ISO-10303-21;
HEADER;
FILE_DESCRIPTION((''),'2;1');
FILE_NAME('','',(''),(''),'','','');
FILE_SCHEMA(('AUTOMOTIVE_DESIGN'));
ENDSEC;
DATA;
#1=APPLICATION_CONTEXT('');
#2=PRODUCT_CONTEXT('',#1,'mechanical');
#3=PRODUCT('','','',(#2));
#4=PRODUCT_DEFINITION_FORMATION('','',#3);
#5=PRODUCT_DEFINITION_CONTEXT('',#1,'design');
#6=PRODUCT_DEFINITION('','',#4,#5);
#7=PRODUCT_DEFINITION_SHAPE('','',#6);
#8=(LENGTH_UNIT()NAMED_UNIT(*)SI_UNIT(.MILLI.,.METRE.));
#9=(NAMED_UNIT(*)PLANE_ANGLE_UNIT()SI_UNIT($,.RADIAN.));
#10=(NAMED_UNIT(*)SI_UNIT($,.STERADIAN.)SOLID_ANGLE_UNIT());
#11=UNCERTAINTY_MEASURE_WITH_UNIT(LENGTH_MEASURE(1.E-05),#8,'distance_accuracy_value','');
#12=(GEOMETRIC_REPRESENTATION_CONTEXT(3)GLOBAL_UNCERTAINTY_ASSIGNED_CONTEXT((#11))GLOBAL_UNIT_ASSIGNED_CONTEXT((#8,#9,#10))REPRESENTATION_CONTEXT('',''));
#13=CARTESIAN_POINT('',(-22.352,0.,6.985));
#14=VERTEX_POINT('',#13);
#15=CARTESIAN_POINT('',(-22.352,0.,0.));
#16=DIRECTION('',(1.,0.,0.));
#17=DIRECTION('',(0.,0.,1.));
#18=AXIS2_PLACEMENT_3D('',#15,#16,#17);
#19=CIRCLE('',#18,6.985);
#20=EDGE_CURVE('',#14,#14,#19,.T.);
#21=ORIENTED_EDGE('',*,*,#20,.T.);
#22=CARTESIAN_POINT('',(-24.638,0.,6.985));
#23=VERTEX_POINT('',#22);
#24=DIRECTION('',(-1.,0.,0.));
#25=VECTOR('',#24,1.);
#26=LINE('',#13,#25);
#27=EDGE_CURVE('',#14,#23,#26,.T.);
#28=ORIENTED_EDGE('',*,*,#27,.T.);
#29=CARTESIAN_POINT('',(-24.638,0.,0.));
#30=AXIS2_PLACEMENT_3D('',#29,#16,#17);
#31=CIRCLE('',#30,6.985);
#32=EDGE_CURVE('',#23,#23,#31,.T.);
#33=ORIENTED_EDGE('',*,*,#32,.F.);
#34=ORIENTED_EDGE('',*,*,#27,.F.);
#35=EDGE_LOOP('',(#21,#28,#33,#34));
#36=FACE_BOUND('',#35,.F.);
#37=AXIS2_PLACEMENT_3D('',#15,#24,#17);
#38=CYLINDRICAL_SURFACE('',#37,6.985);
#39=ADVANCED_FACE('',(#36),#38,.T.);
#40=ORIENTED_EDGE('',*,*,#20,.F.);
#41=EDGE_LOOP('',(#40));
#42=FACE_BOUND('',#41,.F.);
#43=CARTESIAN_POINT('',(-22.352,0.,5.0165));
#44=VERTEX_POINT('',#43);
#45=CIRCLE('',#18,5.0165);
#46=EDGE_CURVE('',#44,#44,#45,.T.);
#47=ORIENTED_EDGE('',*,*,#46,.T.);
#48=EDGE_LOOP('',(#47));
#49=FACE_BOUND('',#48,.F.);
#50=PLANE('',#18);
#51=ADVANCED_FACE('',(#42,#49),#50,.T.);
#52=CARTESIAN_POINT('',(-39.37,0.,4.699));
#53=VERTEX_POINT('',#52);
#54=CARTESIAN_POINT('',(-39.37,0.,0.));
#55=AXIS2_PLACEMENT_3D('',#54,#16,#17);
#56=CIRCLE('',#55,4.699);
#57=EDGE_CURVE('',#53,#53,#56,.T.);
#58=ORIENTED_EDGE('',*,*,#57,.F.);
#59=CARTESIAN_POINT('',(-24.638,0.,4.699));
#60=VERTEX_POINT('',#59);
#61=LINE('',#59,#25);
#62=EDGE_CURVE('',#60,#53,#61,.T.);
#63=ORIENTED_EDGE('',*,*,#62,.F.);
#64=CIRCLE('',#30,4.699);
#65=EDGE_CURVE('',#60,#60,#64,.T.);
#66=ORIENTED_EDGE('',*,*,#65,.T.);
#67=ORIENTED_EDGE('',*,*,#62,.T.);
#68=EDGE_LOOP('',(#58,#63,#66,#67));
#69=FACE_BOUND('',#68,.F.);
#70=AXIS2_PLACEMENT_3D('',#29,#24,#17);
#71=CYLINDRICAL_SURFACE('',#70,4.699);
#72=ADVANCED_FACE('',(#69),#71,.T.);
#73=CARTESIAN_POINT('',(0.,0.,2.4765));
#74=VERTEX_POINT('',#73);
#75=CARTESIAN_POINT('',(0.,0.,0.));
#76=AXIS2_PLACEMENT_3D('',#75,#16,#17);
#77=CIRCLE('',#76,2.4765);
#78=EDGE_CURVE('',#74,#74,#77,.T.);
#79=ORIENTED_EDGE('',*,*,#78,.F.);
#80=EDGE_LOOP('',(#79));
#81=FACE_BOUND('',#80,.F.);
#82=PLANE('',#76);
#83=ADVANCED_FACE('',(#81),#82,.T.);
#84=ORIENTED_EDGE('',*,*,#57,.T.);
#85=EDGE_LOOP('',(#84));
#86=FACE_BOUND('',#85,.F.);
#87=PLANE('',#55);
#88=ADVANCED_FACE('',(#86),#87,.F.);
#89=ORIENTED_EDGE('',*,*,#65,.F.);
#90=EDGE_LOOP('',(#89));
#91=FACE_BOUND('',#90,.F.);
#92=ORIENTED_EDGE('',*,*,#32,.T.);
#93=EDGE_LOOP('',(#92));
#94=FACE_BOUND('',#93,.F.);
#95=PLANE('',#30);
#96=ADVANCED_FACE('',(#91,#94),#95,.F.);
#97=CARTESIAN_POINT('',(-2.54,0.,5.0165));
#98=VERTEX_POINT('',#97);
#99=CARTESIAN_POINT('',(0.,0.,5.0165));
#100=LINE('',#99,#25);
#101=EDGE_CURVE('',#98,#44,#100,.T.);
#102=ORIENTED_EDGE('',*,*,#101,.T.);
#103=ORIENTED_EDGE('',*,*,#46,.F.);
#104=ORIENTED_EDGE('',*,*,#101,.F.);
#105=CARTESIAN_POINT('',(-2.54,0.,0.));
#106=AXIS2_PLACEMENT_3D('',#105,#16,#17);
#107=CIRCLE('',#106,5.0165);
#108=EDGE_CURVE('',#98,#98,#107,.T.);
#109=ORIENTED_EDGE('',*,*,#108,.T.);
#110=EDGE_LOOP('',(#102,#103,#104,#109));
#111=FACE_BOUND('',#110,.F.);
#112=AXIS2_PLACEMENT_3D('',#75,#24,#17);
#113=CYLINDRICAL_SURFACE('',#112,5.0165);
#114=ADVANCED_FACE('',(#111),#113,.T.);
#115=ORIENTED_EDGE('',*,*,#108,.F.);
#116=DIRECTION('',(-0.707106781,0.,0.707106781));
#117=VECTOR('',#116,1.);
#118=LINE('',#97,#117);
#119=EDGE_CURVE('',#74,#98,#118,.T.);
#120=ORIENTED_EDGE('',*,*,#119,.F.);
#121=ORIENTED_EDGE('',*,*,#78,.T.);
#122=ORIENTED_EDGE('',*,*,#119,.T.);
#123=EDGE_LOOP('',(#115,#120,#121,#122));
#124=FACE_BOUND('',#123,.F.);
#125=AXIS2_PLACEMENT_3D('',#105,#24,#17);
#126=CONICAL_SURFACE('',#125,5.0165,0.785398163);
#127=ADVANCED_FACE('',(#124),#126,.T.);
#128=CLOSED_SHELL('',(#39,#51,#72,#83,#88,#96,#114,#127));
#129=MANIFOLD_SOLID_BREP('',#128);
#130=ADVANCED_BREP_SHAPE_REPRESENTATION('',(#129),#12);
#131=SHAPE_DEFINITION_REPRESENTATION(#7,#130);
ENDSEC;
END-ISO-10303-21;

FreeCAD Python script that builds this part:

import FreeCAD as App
import Part
import Sketcher
Q = App.Units.Quantity


def edges_at(feature, points):
    """Names of the edges that pass closest to the given points."""
    edges = feature.Shape.Edges
    near = lambda p: min(range(len(edges)), key=lambda i: edges[i].distToShape(Part.Vertex(*p))[0])
    return sorted({f"Edge{near(p) + 1}" for p in points})


def add_polygon(sketch, points):
    """Adds a closed chain of lines whose ends are joined by coincident constraints."""
    first, n = sketch.GeometryCount, len(points)
    for a, b in zip(points, points[1:] + points[:1]):
        sketch.addGeometry(Part.LineSegment(App.Vector(*a, 0), App.Vector(*b, 0)), False)
    for i in range(n):
        sketch.addConstraint(Sketcher.Constraint("Coincident", first + i, 2, first + (i + 1) % n, 1))

doc = App.newDocument("Part")
params = doc.addObject("Spreadsheet::Sheet", "Params")
for row, (alias, value) in enumerate([
    ("sketch1_width", "1.55 in"),
    ("sketch1_width2", "0.88 in"),
    ("sketch1_width3", "0.09 in"),
    ("sketch1_height", "0.185 in"),
    ("revolution_angle", "360 deg"),
    ("chamfer_size", "0.1 in"),
], start=1):
    params.set(f"A{row}", alias)
    params.set(f"B{row}", "=" + value)
    params.setAlias(f"B{row}", alias)

body = doc.addObject("PartDesign::Body", "Body")

sketch1 = doc.addObject("Sketcher::SketchObject", "Sketch")
body.addObject(sketch1)
sketch1.AttachmentSupport = (doc.XZ_Plane, [""])
sketch1.MapMode = "FlatFace"
add_polygon(sketch1, [(-39.4, 0), (0, 0), (0, 5), (-22.4, 5), (-22.4, 7), (-24.6, 7), (-24.6, 4.7), (-39.4, 4.7)])
sketch1.addConstraint(Sketcher.Constraint("Horizontal", 0))
sketch1.addConstraint(Sketcher.Constraint("Vertical", 1))
sketch1.addConstraint(Sketcher.Constraint("Horizontal", 2))
sketch1.addConstraint(Sketcher.Constraint("Vertical", 3))
sketch1.addConstraint(Sketcher.Constraint("Horizontal", 4))
sketch1.addConstraint(Sketcher.Constraint("Vertical", 5))
sketch1.addConstraint(Sketcher.Constraint("Horizontal", 6))
sketch1.addConstraint(Sketcher.Constraint("Vertical", 7))
sketch1.addConstraint(Sketcher.Constraint("Coincident", 0, 2, -1, 1))
sketch1.addConstraint(Sketcher.Constraint("Equal", 4, 5))
sketch1.addConstraint(Sketcher.Constraint("DistanceX", 0, 1, 0, 2, Q("1.55 in")))
sketch1.addConstraint(Sketcher.Constraint("DistanceX", 2, 2, 2, 1, Q("0.88 in")))
sketch1.addConstraint(Sketcher.Constraint("DistanceX", 4, 2, 4, 1, Q("0.09 in")))
sketch1.addConstraint(Sketcher.Constraint("DistanceY", 7, 2, 7, 1, Q("0.185 in")))
sketch1.addConstraint(Sketcher.Constraint("DistanceY", 1, 1, 1, 2, Q("0.1975 in")))
sketch1.setExpression("Constraints[18]", "Params.sketch1_width")
sketch1.setExpression("Constraints[19]", "Params.sketch1_width2")
sketch1.setExpression("Constraints[20]", "Params.sketch1_width3")
sketch1.setExpression("Constraints[21]", "Params.sketch1_height")
revolution = doc.addObject("PartDesign::Revolution", "Revolution")
body.addObject(revolution)
revolution.Profile = sketch1
revolution.ReferenceAxis = (sketch1, ["H_Axis"])
revolution.setExpression("Angle", "Params.revolution_angle")
doc.recompute()

chamfer = doc.addObject("PartDesign::Chamfer", "Chamfer")
body.addObject(chamfer)
chamfer.Base = (revolution, edges_at(revolution, [(0, 0, -5.016)]))
chamfer.setExpression("Size", "Params.chamfer_size")

doc.recompute()
